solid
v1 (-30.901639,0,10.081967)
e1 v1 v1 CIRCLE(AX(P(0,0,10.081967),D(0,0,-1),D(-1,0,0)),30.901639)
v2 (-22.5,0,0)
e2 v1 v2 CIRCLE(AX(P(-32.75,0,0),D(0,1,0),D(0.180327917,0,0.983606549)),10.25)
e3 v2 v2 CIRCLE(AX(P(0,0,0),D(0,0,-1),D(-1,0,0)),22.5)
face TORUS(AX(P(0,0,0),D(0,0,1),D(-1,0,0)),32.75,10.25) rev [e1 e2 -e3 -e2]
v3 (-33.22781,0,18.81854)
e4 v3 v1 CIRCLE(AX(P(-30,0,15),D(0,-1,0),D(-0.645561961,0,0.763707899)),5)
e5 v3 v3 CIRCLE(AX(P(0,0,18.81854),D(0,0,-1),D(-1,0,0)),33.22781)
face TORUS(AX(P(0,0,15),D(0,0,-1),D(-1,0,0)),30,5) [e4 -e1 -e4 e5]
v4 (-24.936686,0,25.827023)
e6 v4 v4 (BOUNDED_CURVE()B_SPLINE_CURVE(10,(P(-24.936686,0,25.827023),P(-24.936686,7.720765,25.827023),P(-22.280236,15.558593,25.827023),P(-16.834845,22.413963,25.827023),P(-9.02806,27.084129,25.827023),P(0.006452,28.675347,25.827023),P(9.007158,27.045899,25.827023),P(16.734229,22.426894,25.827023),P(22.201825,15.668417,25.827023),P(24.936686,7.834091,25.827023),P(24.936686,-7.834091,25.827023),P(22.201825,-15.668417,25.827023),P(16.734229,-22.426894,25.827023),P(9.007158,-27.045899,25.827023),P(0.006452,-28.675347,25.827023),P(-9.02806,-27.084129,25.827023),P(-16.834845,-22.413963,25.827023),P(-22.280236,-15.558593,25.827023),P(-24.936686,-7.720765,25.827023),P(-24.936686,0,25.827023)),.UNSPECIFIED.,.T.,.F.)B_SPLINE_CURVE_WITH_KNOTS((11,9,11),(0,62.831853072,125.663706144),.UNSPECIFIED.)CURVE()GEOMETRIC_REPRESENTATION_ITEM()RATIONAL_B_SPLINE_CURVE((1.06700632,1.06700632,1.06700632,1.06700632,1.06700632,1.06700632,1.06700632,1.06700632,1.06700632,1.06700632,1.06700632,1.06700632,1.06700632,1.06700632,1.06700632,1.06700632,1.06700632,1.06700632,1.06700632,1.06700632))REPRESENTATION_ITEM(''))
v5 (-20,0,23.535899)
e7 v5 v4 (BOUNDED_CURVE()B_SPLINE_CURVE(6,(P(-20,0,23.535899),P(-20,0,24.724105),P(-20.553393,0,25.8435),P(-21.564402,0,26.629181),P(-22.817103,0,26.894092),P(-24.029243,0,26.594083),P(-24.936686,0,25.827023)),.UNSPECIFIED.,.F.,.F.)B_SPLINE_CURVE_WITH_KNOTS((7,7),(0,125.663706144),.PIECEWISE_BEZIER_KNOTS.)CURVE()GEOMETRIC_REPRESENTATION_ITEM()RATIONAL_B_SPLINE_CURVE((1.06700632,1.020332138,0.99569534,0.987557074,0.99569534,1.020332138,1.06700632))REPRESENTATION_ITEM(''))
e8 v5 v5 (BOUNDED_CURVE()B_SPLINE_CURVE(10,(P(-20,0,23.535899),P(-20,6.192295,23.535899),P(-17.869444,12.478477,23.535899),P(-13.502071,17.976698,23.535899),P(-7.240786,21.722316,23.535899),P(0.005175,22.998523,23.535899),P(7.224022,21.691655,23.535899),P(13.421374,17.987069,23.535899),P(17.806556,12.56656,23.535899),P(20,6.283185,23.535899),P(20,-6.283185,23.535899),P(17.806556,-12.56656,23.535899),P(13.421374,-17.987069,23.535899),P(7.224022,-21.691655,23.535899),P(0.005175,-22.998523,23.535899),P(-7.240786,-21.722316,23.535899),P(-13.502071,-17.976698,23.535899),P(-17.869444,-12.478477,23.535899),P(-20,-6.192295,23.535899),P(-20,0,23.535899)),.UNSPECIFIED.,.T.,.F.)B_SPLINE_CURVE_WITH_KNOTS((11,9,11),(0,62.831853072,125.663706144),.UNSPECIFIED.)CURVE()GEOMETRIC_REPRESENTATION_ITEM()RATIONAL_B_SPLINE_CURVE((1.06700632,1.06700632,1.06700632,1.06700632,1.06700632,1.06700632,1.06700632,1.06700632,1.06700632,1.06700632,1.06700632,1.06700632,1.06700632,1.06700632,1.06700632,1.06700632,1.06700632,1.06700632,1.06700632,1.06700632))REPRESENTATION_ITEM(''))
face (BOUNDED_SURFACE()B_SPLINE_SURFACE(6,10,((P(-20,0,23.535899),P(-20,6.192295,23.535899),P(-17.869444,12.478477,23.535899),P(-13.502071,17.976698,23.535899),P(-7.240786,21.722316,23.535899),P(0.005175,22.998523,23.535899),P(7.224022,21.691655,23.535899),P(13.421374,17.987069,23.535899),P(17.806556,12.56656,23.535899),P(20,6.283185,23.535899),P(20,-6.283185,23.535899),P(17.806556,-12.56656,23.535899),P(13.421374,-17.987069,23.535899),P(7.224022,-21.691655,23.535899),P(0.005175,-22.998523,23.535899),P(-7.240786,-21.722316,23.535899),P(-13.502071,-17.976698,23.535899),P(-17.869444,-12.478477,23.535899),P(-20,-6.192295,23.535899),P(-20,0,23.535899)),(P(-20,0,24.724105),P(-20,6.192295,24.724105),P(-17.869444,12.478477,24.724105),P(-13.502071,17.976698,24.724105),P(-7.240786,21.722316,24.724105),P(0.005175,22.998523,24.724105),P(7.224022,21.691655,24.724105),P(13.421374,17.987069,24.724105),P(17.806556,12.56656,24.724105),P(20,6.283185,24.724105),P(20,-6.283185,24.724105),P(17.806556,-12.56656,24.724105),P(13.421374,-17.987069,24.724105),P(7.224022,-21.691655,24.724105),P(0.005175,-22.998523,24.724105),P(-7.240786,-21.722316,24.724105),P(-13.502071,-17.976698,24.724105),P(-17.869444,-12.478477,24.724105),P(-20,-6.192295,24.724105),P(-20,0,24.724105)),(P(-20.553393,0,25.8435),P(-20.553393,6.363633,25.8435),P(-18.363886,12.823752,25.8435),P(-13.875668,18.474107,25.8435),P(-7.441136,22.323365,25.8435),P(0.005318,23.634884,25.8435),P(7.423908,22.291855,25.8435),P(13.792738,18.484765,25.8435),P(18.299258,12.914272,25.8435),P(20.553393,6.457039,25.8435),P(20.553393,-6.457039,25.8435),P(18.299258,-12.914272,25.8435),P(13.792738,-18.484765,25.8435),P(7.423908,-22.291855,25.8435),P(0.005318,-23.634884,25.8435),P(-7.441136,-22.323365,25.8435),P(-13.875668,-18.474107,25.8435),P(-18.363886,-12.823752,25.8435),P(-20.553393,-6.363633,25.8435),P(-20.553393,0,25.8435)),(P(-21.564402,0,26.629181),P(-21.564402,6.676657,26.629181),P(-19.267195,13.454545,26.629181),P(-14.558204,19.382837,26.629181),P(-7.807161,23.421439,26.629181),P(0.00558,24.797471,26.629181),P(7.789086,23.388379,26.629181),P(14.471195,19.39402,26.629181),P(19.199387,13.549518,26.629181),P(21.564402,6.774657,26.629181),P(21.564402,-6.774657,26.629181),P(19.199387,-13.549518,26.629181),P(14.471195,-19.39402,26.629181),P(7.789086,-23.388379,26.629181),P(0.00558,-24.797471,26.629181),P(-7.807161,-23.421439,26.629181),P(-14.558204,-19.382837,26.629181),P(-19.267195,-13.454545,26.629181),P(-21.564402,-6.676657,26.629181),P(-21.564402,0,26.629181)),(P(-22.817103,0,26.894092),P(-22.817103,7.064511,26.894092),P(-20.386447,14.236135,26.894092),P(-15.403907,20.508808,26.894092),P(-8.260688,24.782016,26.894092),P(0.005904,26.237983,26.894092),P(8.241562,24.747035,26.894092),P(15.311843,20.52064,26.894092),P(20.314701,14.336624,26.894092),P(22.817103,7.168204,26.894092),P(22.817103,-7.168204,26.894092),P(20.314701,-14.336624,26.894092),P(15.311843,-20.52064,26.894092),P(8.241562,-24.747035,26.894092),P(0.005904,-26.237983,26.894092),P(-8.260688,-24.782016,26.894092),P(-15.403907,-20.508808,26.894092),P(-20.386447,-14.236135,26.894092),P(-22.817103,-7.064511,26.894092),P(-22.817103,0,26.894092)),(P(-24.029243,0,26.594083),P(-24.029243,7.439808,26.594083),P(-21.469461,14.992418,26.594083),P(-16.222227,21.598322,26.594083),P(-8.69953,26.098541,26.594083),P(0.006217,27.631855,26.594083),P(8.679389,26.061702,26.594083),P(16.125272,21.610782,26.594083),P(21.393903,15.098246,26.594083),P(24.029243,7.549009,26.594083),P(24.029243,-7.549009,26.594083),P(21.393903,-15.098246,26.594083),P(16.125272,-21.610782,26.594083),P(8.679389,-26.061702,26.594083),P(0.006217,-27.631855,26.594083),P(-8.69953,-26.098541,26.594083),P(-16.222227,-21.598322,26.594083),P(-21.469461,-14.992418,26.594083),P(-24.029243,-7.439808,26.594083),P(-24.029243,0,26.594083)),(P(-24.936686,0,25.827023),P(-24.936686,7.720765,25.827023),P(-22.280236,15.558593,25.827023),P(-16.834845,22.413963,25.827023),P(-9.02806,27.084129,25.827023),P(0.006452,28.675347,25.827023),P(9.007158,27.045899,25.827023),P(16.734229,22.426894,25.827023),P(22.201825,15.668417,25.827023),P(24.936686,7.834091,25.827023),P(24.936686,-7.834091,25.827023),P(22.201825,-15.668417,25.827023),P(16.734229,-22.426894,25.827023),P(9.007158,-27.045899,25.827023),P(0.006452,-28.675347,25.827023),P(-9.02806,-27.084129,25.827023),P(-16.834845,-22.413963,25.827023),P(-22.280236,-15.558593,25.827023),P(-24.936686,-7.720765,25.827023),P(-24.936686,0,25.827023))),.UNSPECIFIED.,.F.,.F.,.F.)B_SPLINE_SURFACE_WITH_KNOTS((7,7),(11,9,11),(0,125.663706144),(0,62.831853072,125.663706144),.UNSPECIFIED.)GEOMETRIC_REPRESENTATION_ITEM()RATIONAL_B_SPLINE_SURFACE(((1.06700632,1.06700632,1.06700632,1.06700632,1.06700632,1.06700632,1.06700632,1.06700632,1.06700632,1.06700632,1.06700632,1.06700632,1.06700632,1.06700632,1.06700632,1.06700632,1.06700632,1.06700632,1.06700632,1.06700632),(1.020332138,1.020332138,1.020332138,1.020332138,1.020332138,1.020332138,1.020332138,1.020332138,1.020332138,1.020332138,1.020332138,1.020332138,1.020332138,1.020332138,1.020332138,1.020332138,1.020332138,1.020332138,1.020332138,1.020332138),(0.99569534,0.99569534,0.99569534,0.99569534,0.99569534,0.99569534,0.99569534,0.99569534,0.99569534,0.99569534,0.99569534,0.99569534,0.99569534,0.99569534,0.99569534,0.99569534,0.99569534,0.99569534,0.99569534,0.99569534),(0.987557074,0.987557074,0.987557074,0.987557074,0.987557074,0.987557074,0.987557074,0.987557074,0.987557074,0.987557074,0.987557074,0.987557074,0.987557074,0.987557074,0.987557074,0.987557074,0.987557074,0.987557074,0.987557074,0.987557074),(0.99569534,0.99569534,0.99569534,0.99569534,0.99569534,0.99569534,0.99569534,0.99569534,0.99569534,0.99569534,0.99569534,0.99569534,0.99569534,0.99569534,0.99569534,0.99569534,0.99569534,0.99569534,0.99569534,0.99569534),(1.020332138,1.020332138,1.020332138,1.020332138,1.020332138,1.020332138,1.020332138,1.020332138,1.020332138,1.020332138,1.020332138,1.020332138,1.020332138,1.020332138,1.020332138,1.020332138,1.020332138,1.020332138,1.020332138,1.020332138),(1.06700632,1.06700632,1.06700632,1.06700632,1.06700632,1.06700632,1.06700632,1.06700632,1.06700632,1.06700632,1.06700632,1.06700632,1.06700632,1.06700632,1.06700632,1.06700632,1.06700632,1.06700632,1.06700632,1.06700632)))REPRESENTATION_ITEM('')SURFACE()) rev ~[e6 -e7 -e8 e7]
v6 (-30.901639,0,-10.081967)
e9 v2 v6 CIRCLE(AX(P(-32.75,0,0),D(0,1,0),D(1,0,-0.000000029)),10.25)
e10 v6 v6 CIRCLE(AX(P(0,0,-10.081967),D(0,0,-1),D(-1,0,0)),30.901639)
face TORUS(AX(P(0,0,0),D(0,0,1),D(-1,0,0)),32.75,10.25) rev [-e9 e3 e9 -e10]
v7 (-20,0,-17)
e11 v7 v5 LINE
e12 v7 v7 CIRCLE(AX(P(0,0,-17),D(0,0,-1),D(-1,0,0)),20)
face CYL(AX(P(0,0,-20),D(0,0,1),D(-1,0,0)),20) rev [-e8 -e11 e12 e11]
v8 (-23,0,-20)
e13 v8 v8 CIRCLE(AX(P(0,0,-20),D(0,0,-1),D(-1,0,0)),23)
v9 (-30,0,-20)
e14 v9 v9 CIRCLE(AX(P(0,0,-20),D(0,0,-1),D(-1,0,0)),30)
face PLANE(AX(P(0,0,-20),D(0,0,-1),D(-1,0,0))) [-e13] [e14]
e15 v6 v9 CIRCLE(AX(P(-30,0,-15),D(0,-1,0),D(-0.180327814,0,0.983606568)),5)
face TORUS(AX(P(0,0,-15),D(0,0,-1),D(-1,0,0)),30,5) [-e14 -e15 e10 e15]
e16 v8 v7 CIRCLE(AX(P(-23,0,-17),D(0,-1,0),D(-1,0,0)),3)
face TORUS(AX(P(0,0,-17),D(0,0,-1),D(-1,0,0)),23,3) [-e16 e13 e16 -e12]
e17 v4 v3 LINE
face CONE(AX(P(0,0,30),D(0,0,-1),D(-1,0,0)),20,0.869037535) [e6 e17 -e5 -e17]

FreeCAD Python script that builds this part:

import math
import FreeCAD as App
import Part
import Sketcher
from FreeCAD import Vector
Q = App.Units.Quantity


def edges_at(feature, points):
    """Names of the edges that pass closest to the given points."""
    edges = feature.Shape.Edges
    near = lambda p: min(range(len(edges)), key=lambda i: edges[i].distToShape(Part.Vertex(*p))[0])
    return sorted({f"Edge{near(p) + 1}" for p in points})

doc = App.newDocument("Part")
body = doc.addObject("PartDesign::Body", "Body")

# Sketch on XZ plane
sketch1 = doc.addObject("Sketcher::SketchObject", "Sketch")
body.addObject(sketch1)
sketch1.AttachmentSupport = (doc.XZ_Plane, [""])
sketch1.MapMode = "FlatFace"
sketch1.addGeometry([
    Part.ArcOfCircle(Part.Circle(Vector(-30, 15, 0), Vector(0, 0, 1), 5), math.radians(130), math.radians(260)),  # 0
    Part.ArcOfCircle(Part.Circle(Vector(-33, 0, 0), Vector(0, 0, 1), 10), math.radians(0), math.radians(80)),  # 1
    Part.ArcOfCircle(Part.Circle(Vector(-33, 0, 0), Vector(0, 0, 1), 10), math.radians(-80), math.radians(0)),  # 2
    Part.ArcOfCircle(Part.Circle(Vector(-30, -15, 0), Vector(0, 0, 1), 5), math.radians(100), math.radians(270)),  # 3
    Part.LineSegment(Vector(-30, -20, 0), Vector(-20, -20, 0)),  # 4
    Part.LineSegment(Vector(-20, -20, 0), Vector(-20, 30, 0)),  # 5
    Part.LineSegment(Vector(-20, 30, 0), Vector(-33, 19, 0)),  # 6
], False)
sketch1.addConstraint([
    Sketcher.Constraint("Tangent", 0, 2, 1, 2),
    Sketcher.Constraint("Tangent", 1, 1, 2, 2),
    Sketcher.Constraint("Tangent", 2, 1, 3, 1),
    Sketcher.Constraint("Tangent", 3, 2, 4, 1),
    Sketcher.Constraint("Coincident", 4, 2, 5, 1),
    Sketcher.Constraint("Coincident", 5, 2, 6, 1),
    Sketcher.Constraint("Tangent", 6, 2, 0, 1),
    Sketcher.Constraint("Horizontal", 4),
    Sketcher.Constraint("Vertical", 5),
    Sketcher.Constraint("Equal", 1, 2),
    Sketcher.Constraint("Equal", 0, 3),
    Sketcher.Constraint("Symmetric", 0, 3, 3, 3, -1),
    Sketcher.Constraint("PointOnObject", 1, 1, -1),
    Sketcher.Constraint("Radius", 0, Q("5 mm")),
    Sketcher.Constraint("DistanceX", 4, 1, 4, 2, Q("10 mm")),
    Sketcher.Constraint("DistanceY", 5, 1, 5, 2, Q("50 mm")),
    Sketcher.Constraint("Radius", 1, Q("10.25 mm")),
    Sketcher.Constraint("DistanceX", 0, 3, -1, 1, Q("30 mm")),
    Sketcher.Constraint("DistanceY", -1, 1, 0, 3, Q("15 mm")),
])
revolution = doc.addObject("PartDesign::Revolution", "Revolution")
body.addObject(revolution)
revolution.Profile = sketch1
revolution.ReferenceAxis = (sketch1, ["V_Axis"])
revolution.Angle = 360
doc.recompute()

fillet = doc.addObject("PartDesign::Fillet", "Fillet")
body.addObject(fillet)
fillet.Base = (revolution, edges_at(revolution, [(20, 0, -20), (20, 0, 30)]))
fillet.Radius = 3

doc.recompute()
